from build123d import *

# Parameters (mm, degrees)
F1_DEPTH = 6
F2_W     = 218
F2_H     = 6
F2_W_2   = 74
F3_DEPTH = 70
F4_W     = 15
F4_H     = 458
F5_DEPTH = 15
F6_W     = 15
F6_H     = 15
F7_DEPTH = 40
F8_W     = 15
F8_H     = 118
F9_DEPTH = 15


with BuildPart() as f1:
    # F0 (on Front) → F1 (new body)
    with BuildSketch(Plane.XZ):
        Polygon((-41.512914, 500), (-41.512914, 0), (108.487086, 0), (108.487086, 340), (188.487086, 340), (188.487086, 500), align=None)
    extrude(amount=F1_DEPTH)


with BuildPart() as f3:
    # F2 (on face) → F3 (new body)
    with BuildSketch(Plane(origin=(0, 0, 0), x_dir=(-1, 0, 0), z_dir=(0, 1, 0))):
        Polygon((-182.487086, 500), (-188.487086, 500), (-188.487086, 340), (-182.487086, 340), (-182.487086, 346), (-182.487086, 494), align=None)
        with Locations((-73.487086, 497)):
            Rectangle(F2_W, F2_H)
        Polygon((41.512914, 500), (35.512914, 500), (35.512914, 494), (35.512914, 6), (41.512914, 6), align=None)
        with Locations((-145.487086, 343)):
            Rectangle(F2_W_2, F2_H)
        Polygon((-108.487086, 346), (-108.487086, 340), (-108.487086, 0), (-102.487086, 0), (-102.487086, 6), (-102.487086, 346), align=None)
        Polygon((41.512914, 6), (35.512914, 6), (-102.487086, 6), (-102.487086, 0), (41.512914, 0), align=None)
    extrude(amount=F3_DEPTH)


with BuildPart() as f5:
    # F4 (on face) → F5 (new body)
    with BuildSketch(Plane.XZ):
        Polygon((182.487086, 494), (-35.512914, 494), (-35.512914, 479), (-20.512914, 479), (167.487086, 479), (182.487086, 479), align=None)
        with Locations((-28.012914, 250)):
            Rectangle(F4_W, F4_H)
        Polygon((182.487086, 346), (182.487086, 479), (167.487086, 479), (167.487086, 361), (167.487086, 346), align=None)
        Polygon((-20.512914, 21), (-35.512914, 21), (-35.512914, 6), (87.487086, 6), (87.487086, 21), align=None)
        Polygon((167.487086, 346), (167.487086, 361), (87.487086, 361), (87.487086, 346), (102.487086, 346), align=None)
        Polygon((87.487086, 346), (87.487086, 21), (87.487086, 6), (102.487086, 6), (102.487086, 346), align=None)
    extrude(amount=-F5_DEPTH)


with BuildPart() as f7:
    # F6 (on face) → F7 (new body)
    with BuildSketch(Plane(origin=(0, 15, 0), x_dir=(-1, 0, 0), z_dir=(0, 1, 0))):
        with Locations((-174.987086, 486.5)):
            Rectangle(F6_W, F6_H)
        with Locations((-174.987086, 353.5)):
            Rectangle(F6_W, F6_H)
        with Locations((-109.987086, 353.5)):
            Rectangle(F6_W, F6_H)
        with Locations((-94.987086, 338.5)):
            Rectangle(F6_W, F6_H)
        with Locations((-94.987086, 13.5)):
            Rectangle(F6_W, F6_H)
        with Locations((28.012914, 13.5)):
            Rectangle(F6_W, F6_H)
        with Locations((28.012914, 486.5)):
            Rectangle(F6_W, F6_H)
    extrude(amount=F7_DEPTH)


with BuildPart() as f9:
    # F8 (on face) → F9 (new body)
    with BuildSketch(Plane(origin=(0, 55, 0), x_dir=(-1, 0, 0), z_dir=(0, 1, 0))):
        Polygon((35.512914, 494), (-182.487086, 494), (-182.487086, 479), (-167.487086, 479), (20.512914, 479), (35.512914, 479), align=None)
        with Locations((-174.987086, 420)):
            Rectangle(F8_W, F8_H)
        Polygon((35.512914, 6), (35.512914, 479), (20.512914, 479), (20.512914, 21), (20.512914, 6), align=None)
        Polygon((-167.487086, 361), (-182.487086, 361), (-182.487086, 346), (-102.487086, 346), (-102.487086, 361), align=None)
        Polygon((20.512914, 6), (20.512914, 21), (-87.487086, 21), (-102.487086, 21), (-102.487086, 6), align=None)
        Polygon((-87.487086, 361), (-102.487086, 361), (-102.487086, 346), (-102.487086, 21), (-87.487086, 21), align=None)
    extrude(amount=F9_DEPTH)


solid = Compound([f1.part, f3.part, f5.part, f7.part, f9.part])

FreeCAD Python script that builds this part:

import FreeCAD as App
import Part
import Sketcher
Q = App.Units.Quantity


def add_polygon(sketch, points):
    """Adds a closed chain of lines whose ends are joined by coincident constraints."""
    first, n = sketch.GeometryCount, len(points)
    for a, b in zip(points, points[1:] + points[:1]):
        sketch.addGeometry(Part.LineSegment(App.Vector(*a, 0), App.Vector(*b, 0)), False)
    for i in range(n):
        sketch.addConstraint(Sketcher.Constraint("Coincident", first + i, 2, first + (i + 1) % n, 1))

doc = App.newDocument("Part")
body = doc.addObject("PartDesign::Body", "Body")

sketch1 = doc.addObject("Sketcher::SketchObject", "Sketch")
body.addObject(sketch1)
sketch1.AttachmentSupport = (doc.XZ_Plane, [""])
sketch1.MapMode = "FlatFace"
add_polygon(sketch1, [(-41.512914, 500), (-41.512914, 0), (108.487086, 0), (108.487086, 340), (188.487086, 340), (188.487086, 500)])
sketch1.addConstraint([
    Sketcher.Constraint("Vertical", 0),
    Sketcher.Constraint("Horizontal", 1),
    Sketcher.Constraint("Vertical", 2),
    Sketcher.Constraint("Horizontal", 3),
    Sketcher.Constraint("Vertical", 4),
    Sketcher.Constraint("Horizontal", 5),
    Sketcher.Constraint("PointOnObject", 0, 2, -1),
    Sketcher.Constraint("DistanceX", 1, 1, 1, 2, Q("150 mm")),
    Sketcher.Constraint("DistanceX", 3, 1, 3, 2, Q("80 mm")),
    Sketcher.Constraint("DistanceY", 0, 2, 0, 1, Q("500 mm")),
    Sketcher.Constraint("DistanceY", 2, 1, 2, 2, Q("340 mm")),
    Sketcher.Constraint("DistanceX", 0, 2, -1, 1, Q("41.512914 mm")),
])
pad1 = doc.addObject("PartDesign::Pad", "Pad")
body.addObject(pad1)
pad1.Profile = sketch1
pad1.Length = 6
body2 = doc.addObject("PartDesign::Body", "Body001")

sketch2 = doc.addObject("Sketcher::SketchObject", "Sketch001")
body2.addObject(sketch2)
sketch2.AttachmentSupport = (doc.getObject("XZ_Plane001"), [""])
sketch2.MapMode = "FlatFace"
add_polygon(sketch2, [(188.487086, 500), (188.487086, 340), (108.487086, 340), (108.487086, 0), (-41.512914, 0), (-41.512914, 500)])
add_polygon(sketch2, [(102.487086, 6), (102.487086, 346), (182.487086, 346), (182.487086, 494), (-35.512914, 494), (-35.512914, 6)])
sketch2.addConstraint([
    Sketcher.Constraint("Vertical", 0),
    Sketcher.Constraint("Horizontal", 1),
    Sketcher.Constraint("Vertical", 2),
    Sketcher.Constraint("Horizontal", 3),
    Sketcher.Constraint("Vertical", 4),
    Sketcher.Constraint("Horizontal", 5),
    Sketcher.Constraint("Vertical", 6),
    Sketcher.Constraint("Horizontal", 7),
    Sketcher.Constraint("Vertical", 8),
    Sketcher.Constraint("Horizontal", 9),
    Sketcher.Constraint("Vertical", 10),
    Sketcher.Constraint("Horizontal", 11),
    Sketcher.Constraint("PointOnObject", 2, 2, -1),
    Sketcher.Constraint("Equal", 1, 7),
    Sketcher.Constraint("Equal", 2, 6),
    Sketcher.Constraint("DistanceX", 1, 2, 1, 1, Q("80 mm")),
    Sketcher.Constraint("DistanceX", 3, 2, 3, 1, Q("150 mm")),
    Sketcher.Constraint("DistanceX", 9, 2, 9, 1, Q("218 mm")),
    Sketcher.Constraint("DistanceY", 0, 2, 0, 1, Q("160 mm")),
    Sketcher.Constraint("DistanceY", 2, 2, 2, 1, Q("340 mm")),
    Sketcher.Constraint("DistanceY", 8, 1, 8, 2, Q("148 mm")),
    Sketcher.Constraint("DistanceY", -1, 1, 6, 2, Q("346 mm")),
    Sketcher.Constraint("DistanceX", 6, 2, 1, 2, Q("6 mm")),
    Sketcher.Constraint("DistanceX", -1, 1, 0, 2, Q("188.487086 mm")),
])
pad2 = doc.addObject("PartDesign::Pad", "Pad001")
body2.addObject(pad2)
pad2.Profile = sketch2
pad2.Length = 70
pad2.Reversed = True
body3 = doc.addObject("PartDesign::Body", "Body002")

sketch3 = doc.addObject("Sketcher::SketchObject", "Sketch002")
body3.addObject(sketch3)
sketch3.AttachmentSupport = (doc.getObject("XZ_Plane002"), [""])
sketch3.MapMode = "FlatFace"
add_polygon(sketch3, [(182.487086, 494), (-35.512914, 494), (-35.512914, 6), (102.487086, 6), (102.487086, 346), (182.487086, 346)])
add_polygon(sketch3, [(87.487086, 21), (-20.512914, 21), (-20.512914, 479), (167.487086, 479), (167.487086, 361), (87.487086, 361)])
sketch3.addConstraint([
    Sketcher.Constraint("Horizontal", 0),
    Sketcher.Constraint("Vertical", 1),
    Sketcher.Constraint("Horizontal", 2),
    Sketcher.Constraint("Vertical", 3),
    Sketcher.Constraint("Horizontal", 4),
    Sketcher.Constraint("Vertical", 5),
    Sketcher.Constraint("Horizontal", 6),
    Sketcher.Constraint("Vertical", 7),
    Sketcher.Constraint("Horizontal", 8),
    Sketcher.Constraint("Vertical", 9),
    Sketcher.Constraint("Horizontal", 10),
    Sketcher.Constraint("Vertical", 11),
    Sketcher.Constraint("Equal", 4, 10),
    Sketcher.Constraint("Equal", 3, 11),
    Sketcher.Constraint("DistanceX", 0, 2, 0, 1, Q("218 mm")),
    Sketcher.Constraint("DistanceX", 2, 1, 2, 2, Q("138 mm")),
    Sketcher.Constraint("DistanceX", 6, 2, 6, 1, Q("108 mm")),
    Sketcher.Constraint("DistanceY", 1, 2, 1, 1, Q("488 mm")),
    Sketcher.Constraint("DistanceY", 3, 1, 3, 2, Q("340 mm")),
    Sketcher.Constraint("DistanceY", 7, 1, 7, 2, Q("458 mm")),
    Sketcher.Constraint("DistanceY", -1, 1, 0, 2, Q("494 mm")),
    Sketcher.Constraint("DistanceY", -1, 1, 6, 2, Q("21 mm")),
    Sketcher.Constraint("DistanceX", 1, 2, 6, 2, Q("15 mm")),
    Sketcher.Constraint("DistanceX", 0, 2, -1, 1, Q("35.512914 mm")),
])
pad3 = doc.addObject("PartDesign::Pad", "Pad002")
body3.addObject(pad3)
pad3.Profile = sketch3
pad3.Length = 15
pad3.Reversed = True
body4 = doc.addObject("PartDesign::Body", "Body003")
body4.AllowCompound = True

sketch4 = doc.addObject("Sketcher::SketchObject", "Sketch003")
body4.addObject(sketch4)
sketch4.AttachmentSupport = (doc.getObject("XZ_Plane003"), [""])
sketch4.MapMode = "FlatFace"
sketch4.AttachmentOffset = App.Placement(App.Vector(0, 0, -15), App.Rotation())
add_polygon(sketch4, [(182.487086, 494), (182.487086, 479), (167.487086, 479), (167.487086, 494)])
add_polygon(sketch4, [(182.487086, 361), (182.487086, 346), (167.487086, 346), (167.487086, 361)])
add_polygon(sketch4, [(117.487086, 361), (117.487086, 346), (102.487086, 346), (102.487086, 361)])
add_polygon(sketch4, [(102.487086, 346), (102.487086, 331), (87.487086, 331), (87.487086, 346)])
add_polygon(sketch4, [(102.487086, 21), (102.487086, 6), (87.487086, 6), (87.487086, 21)])
add_polygon(sketch4, [(-20.512914, 21), (-20.512914, 6), (-35.512914, 6), (-35.512914, 21)])
add_polygon(sketch4, [(-20.512914, 494), (-20.512914, 479), (-35.512914, 479), (-35.512914, 494)])
sketch4.addConstraint([
    Sketcher.Constraint("Vertical", 0),
    Sketcher.Constraint("Horizontal", 1),
    Sketcher.Constraint("Vertical", 2),
    Sketcher.Constraint("Horizontal", 3),
    Sketcher.Constraint("Vertical", 4),
    Sketcher.Constraint("Horizontal", 5),
    Sketcher.Constraint("Vertical", 6),
    Sketcher.Constraint("Horizontal", 7),
    Sketcher.Constraint("Vertical", 8),
    Sketcher.Constraint("Horizontal", 9),
    Sketcher.Constraint("Vertical", 10),
    Sketcher.Constraint("Horizontal", 11),
    Sketcher.Constraint("Vertical", 12),
    Sketcher.Constraint("Horizontal", 13),
    Sketcher.Constraint("Vertical", 14),
    Sketcher.Constraint("Horizontal", 15),
    Sketcher.Constraint("Vertical", 16),
    Sketcher.Constraint("Horizontal", 17),
    Sketcher.Constraint("Vertical", 18),
    Sketcher.Constraint("Horizontal", 19),
    Sketcher.Constraint("Vertical", 20),
    Sketcher.Constraint("Horizontal", 21),
    Sketcher.Constraint("Vertical", 22),
    Sketcher.Constraint("Horizontal", 23),
    Sketcher.Constraint("Vertical", 24),
    Sketcher.Constraint("Horizontal", 25),
    Sketcher.Constraint("Vertical", 26),
    Sketcher.Constraint("Horizontal", 27),
    Sketcher.Constraint("Coincident", 15, 2, 9, 2),
    Sketcher.Constraint("Horizontal", 5, 2, 8, 2),
    Sketcher.Constraint("Horizontal", 7, 2, 10, 2),
    Sketcher.Constraint("Horizontal", 17, 2, 20, 2),
    Sketcher.Constraint("Horizontal", 19, 2, 22, 2),
    Sketcher.Constraint("Horizontal", 1, 2, 24, 2),
    Sketcher.Constraint("Horizontal", 3, 2, 26, 2),
    Sketcher.Constraint("Vertical", 3, 2, 4, 2),
    Sketcher.Constraint("Vertical", 2, 2, 5, 2),
    Sketcher.Constraint("Vertical", 15, 2, 16, 2),
    Sketcher.Constraint("Vertical", 14, 2, 17, 2),
    Sketcher.Constraint("Vertical", 23, 2, 24, 2),
    Sketcher.Constraint("Vertical", 22, 2, 25, 2),
    Sketcher.Constraint("Equal", 7, 9),
    Sketcher.Constraint("Equal", 11, 13),
    Sketcher.Constraint("Equal", 19, 21),
    Sketcher.Constraint("Equal", 27, 0),
    Sketcher.Constraint("Equal", 2, 4),
    Sketcher.Constraint("Equal", 10, 12),
    Sketcher.Constraint("Equal", 14, 16),
    Sketcher.Constraint("DistanceX", 1, 2, 1, 1, Q("15 mm")),
    Sketcher.Constraint("DistanceY", -1, 1, 0, 2, Q("479 mm")),
    Sketcher.Constraint("DistanceY", -1, 1, 4, 2, Q("346 mm")),
    Sketcher.Constraint("DistanceY", -1, 1, 16, 2, Q("6 mm")),
    Sketcher.Constraint("DistanceX", 8, 2, 5, 2, Q("50 mm")),
    Sketcher.Constraint("DistanceX", 20, 2, 17, 2, Q("108 mm")),
    Sketcher.Constraint("DistanceX", -1, 1, 0, 2, Q("182.487086 mm")),
])
pad4 = doc.addObject("PartDesign::Pad", "Pad003")
body4.addObject(pad4)
pad4.Profile = sketch4
pad4.Length = 40
pad4.Reversed = True
body5 = doc.addObject("PartDesign::Body", "Body004")

sketch5 = doc.addObject("Sketcher::SketchObject", "Sketch004")
body5.addObject(sketch5)
sketch5.AttachmentSupport = (doc.getObject("XZ_Plane004"), [""])
sketch5.MapMode = "FlatFace"
sketch5.AttachmentOffset = App.Placement(App.Vector(0, 0, -55), App.Rotation())
add_polygon(sketch5, [(-35.512914, 494), (182.487086, 494), (182.487086, 346), (102.487086, 346), (102.487086, 6), (-35.512914, 6)])
add_polygon(sketch5, [(167.487086, 361), (167.487086, 479), (-20.512914, 479), (-20.512914, 21), (87.487086, 21), (87.487086, 361)])
sketch5.addConstraint([
    Sketcher.Constraint("Horizontal", 0),
    Sketcher.Constraint("Vertical", 1),
    Sketcher.Constraint("Horizontal", 2),
    Sketcher.Constraint("Vertical", 3),
    Sketcher.Constraint("Horizontal", 4),
    Sketcher.Constraint("Vertical", 5),
    Sketcher.Constraint("Vertical", 6),
    Sketcher.Constraint("Horizontal", 7),
    Sketcher.Constraint("Vertical", 8),
    Sketcher.Constraint("Horizontal", 9),
    Sketcher.Constraint("Vertical", 10),
    Sketcher.Constraint("Horizontal", 11),
    Sketcher.Constraint("Equal", 2, 11),
    Sketcher.Constraint("Equal", 3, 10),
    Sketcher.Constraint("DistanceX", 0, 1, 0, 2, Q("218 mm")),
    Sketcher.Constraint("DistanceX", 2, 2, 2, 1, Q("80 mm")),
    Sketcher.Constraint("DistanceX", 7, 2, 7, 1, Q("188 mm")),
    Sketcher.Constraint("DistanceY", 1, 2, 1, 1, Q("148 mm")),
    Sketcher.Constraint("DistanceY", 3, 2, 3, 1, Q("340 mm")),
    Sketcher.Constraint("DistanceY", 6, 1, 6, 2, Q("118 mm")),
    Sketcher.Constraint("DistanceY", -1, 1, 0, 2, Q("494 mm")),
    Sketcher.Constraint("DistanceY", -1, 1, 6, 2, Q("479 mm")),
    Sketcher.Constraint("DistanceX", 6, 2, 0, 2, Q("15 mm")),
    Sketcher.Constraint("DistanceX", -1, 1, 0, 2, Q("182.487086 mm")),
])
pad5 = doc.addObject("PartDesign::Pad", "Pad004")
body5.addObject(pad5)
pad5.Profile = sketch5
pad5.Length = 15
pad5.Reversed = True

doc.recompute()
